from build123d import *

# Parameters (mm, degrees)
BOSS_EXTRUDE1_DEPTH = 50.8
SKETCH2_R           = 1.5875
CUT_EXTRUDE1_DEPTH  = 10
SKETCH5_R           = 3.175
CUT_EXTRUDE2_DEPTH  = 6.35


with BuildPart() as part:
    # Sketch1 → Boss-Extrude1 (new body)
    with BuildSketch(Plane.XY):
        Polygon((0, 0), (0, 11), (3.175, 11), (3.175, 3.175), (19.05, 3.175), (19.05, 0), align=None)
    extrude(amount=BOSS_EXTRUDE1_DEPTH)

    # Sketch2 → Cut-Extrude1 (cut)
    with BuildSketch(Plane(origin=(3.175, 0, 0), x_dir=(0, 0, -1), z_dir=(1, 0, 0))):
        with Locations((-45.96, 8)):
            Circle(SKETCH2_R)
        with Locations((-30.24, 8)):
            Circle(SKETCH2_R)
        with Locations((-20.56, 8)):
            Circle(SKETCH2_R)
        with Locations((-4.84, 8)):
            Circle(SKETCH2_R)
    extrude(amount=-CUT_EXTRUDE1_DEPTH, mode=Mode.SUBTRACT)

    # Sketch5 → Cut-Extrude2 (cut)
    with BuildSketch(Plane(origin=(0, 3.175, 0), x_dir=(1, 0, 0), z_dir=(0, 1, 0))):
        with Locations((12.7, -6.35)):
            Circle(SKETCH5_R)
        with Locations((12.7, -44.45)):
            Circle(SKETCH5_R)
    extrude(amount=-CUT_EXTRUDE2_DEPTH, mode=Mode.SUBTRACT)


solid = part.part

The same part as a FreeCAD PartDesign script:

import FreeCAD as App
import Part
import Sketcher
Q = App.Units.Quantity


def add_polygon(sketch, points):
    """Adds a closed chain of lines whose ends are joined by coincident constraints."""
    first, n = sketch.GeometryCount, len(points)
    for a, b in zip(points, points[1:] + points[:1]):
        sketch.addGeometry(Part.LineSegment(App.Vector(*a, 0), App.Vector(*b, 0)), False)
    for i in range(n):
        sketch.addConstraint(Sketcher.Constraint("Coincident", first + i, 2, first + (i + 1) % n, 1))

doc = App.newDocument("Part")
body = doc.addObject("PartDesign::Body", "Body")

# Sketch on XY plane
sketch1 = body.newObject("Sketcher::SketchObject", "Sketch")
sketch1.AttachmentSupport = (doc.getObject("XY_Plane"), [""])
sketch1.MapMode = "FlatFace"
add_polygon(sketch1, [(0, 11), (0, 0), (19.1, 0), (19.1, 3.2), (3.2, 3.2), (3.2, 11)])  # lines 0-5
sketch1.addConstraint([
    Sketcher.Constraint("Vertical", 0),
    Sketcher.Constraint("Horizontal", 1),
    Sketcher.Constraint("Vertical", 2),
    Sketcher.Constraint("Horizontal", 3),
    Sketcher.Constraint("Vertical", 4),
    Sketcher.Constraint("Horizontal", 5),
    Sketcher.Constraint("Coincident", 0, 2, -1, 1),
    Sketcher.Constraint("Equal", 5, 2),
    Sketcher.Constraint("DistanceX", 1, 1, 1, 2, Q("0.75 in")),
    Sketcher.Constraint("DistanceX", 3, 2, 3, 1, Q("0.625 in")),
    Sketcher.Constraint("DistanceY", 0, 2, 0, 1, Q("11 mm")),
])
pad1 = body.newObject("PartDesign::Pad", "Pad")
pad1.Profile = sketch1
pad1.Length = Q("2 in")

# Sketch on YZ plane
sketch2 = body.newObject("Sketcher::SketchObject", "Sketch001")
sketch2.AttachmentSupport = (doc.getObject("YZ_Plane"), [""])
sketch2.MapMode = "FlatFace"
sketch2.AttachmentOffset = App.Placement(App.Vector(0, 0, 0.125 * 25.4), App.Rotation())
sketch2.addGeometry([
    Part.Circle(App.Vector(8, 46, 0), App.Vector(0, 0, 1), 1.6),
    Part.Circle(App.Vector(8, 30.2, 0), App.Vector(0, 0, 1), 1.6),
    Part.Circle(App.Vector(8, 20.6, 0), App.Vector(0, 0, 1), 1.6),
    Part.Circle(App.Vector(8, 4.8, 0), App.Vector(0, 0, 1), 1.6),
], False)
sketch2.addConstraint([
    Sketcher.Constraint("Equal", 0, 1),
    Sketcher.Constraint("Equal", 1, 2),
    Sketcher.Constraint("Equal", 2, 3),
    Sketcher.Constraint("Vertical", 0, 3, 1, 3),
    Sketcher.Constraint("Vertical", 1, 3, 2, 3),
    Sketcher.Constraint("Vertical", 2, 3, 3, 3),
    Sketcher.Constraint("Diameter", 0, Q("0.125 in")),
    Sketcher.Constraint("DistanceY", 2, 3, 0, 3, Q("1 in")),
    Sketcher.Constraint("DistanceY", 3, 3, 1, 3, Q("1 in")),
    Sketcher.Constraint("DistanceX", -1, 1, 0, 3, Q("8 mm")),
    Sketcher.Constraint("DistanceY", -1, 1, 0, 3, Q("45.96 mm")),
    Sketcher.Constraint("DistanceY", -1, 1, 1, 3, Q("30.24 mm")),
])
pocket1 = body.newObject("PartDesign::Pocket", "Pocket")
pocket1.Profile = sketch2
pocket1.Length = 10

# Sketch on XZ plane
sketch3 = body.newObject("Sketcher::SketchObject", "Sketch002")
sketch3.AttachmentSupport = (doc.getObject("XZ_Plane"), [""])
sketch3.MapMode = "FlatFace"
sketch3.AttachmentOffset = App.Placement(App.Vector(0, 0, -0.125 * 25.4), App.Rotation())
sketch3.addGeometry([
    Part.Circle(App.Vector(12.7, 6.3, 0), App.Vector(0, 0, 1), 3.2),
    Part.Circle(App.Vector(12.7, 44.5, 0), App.Vector(0, 0, 1), 3.2),
], False)
sketch3.addConstraint([
    Sketcher.Constraint("Equal", 0, 1),
    Sketcher.Constraint("Vertical", 0, 3, 1, 3),
    Sketcher.Constraint("Diameter", 0, Q("0.25 in")),
    Sketcher.Constraint("DistanceX", -1, 1, 0, 3, Q("0.5 in")),
    Sketcher.Constraint("DistanceY", 0, 3, 1, 3, Q("1.5 in")),
    Sketcher.Constraint("DistanceY", -1, 1, 0, 3, Q("0.25 in")),
])
pocket2 = body.newObject("PartDesign::Pocket", "Pocket001")
pocket2.Profile = sketch3
pocket2.Length = Q("0.25 in")
pocket2.Reversed = True

doc.recompute()
